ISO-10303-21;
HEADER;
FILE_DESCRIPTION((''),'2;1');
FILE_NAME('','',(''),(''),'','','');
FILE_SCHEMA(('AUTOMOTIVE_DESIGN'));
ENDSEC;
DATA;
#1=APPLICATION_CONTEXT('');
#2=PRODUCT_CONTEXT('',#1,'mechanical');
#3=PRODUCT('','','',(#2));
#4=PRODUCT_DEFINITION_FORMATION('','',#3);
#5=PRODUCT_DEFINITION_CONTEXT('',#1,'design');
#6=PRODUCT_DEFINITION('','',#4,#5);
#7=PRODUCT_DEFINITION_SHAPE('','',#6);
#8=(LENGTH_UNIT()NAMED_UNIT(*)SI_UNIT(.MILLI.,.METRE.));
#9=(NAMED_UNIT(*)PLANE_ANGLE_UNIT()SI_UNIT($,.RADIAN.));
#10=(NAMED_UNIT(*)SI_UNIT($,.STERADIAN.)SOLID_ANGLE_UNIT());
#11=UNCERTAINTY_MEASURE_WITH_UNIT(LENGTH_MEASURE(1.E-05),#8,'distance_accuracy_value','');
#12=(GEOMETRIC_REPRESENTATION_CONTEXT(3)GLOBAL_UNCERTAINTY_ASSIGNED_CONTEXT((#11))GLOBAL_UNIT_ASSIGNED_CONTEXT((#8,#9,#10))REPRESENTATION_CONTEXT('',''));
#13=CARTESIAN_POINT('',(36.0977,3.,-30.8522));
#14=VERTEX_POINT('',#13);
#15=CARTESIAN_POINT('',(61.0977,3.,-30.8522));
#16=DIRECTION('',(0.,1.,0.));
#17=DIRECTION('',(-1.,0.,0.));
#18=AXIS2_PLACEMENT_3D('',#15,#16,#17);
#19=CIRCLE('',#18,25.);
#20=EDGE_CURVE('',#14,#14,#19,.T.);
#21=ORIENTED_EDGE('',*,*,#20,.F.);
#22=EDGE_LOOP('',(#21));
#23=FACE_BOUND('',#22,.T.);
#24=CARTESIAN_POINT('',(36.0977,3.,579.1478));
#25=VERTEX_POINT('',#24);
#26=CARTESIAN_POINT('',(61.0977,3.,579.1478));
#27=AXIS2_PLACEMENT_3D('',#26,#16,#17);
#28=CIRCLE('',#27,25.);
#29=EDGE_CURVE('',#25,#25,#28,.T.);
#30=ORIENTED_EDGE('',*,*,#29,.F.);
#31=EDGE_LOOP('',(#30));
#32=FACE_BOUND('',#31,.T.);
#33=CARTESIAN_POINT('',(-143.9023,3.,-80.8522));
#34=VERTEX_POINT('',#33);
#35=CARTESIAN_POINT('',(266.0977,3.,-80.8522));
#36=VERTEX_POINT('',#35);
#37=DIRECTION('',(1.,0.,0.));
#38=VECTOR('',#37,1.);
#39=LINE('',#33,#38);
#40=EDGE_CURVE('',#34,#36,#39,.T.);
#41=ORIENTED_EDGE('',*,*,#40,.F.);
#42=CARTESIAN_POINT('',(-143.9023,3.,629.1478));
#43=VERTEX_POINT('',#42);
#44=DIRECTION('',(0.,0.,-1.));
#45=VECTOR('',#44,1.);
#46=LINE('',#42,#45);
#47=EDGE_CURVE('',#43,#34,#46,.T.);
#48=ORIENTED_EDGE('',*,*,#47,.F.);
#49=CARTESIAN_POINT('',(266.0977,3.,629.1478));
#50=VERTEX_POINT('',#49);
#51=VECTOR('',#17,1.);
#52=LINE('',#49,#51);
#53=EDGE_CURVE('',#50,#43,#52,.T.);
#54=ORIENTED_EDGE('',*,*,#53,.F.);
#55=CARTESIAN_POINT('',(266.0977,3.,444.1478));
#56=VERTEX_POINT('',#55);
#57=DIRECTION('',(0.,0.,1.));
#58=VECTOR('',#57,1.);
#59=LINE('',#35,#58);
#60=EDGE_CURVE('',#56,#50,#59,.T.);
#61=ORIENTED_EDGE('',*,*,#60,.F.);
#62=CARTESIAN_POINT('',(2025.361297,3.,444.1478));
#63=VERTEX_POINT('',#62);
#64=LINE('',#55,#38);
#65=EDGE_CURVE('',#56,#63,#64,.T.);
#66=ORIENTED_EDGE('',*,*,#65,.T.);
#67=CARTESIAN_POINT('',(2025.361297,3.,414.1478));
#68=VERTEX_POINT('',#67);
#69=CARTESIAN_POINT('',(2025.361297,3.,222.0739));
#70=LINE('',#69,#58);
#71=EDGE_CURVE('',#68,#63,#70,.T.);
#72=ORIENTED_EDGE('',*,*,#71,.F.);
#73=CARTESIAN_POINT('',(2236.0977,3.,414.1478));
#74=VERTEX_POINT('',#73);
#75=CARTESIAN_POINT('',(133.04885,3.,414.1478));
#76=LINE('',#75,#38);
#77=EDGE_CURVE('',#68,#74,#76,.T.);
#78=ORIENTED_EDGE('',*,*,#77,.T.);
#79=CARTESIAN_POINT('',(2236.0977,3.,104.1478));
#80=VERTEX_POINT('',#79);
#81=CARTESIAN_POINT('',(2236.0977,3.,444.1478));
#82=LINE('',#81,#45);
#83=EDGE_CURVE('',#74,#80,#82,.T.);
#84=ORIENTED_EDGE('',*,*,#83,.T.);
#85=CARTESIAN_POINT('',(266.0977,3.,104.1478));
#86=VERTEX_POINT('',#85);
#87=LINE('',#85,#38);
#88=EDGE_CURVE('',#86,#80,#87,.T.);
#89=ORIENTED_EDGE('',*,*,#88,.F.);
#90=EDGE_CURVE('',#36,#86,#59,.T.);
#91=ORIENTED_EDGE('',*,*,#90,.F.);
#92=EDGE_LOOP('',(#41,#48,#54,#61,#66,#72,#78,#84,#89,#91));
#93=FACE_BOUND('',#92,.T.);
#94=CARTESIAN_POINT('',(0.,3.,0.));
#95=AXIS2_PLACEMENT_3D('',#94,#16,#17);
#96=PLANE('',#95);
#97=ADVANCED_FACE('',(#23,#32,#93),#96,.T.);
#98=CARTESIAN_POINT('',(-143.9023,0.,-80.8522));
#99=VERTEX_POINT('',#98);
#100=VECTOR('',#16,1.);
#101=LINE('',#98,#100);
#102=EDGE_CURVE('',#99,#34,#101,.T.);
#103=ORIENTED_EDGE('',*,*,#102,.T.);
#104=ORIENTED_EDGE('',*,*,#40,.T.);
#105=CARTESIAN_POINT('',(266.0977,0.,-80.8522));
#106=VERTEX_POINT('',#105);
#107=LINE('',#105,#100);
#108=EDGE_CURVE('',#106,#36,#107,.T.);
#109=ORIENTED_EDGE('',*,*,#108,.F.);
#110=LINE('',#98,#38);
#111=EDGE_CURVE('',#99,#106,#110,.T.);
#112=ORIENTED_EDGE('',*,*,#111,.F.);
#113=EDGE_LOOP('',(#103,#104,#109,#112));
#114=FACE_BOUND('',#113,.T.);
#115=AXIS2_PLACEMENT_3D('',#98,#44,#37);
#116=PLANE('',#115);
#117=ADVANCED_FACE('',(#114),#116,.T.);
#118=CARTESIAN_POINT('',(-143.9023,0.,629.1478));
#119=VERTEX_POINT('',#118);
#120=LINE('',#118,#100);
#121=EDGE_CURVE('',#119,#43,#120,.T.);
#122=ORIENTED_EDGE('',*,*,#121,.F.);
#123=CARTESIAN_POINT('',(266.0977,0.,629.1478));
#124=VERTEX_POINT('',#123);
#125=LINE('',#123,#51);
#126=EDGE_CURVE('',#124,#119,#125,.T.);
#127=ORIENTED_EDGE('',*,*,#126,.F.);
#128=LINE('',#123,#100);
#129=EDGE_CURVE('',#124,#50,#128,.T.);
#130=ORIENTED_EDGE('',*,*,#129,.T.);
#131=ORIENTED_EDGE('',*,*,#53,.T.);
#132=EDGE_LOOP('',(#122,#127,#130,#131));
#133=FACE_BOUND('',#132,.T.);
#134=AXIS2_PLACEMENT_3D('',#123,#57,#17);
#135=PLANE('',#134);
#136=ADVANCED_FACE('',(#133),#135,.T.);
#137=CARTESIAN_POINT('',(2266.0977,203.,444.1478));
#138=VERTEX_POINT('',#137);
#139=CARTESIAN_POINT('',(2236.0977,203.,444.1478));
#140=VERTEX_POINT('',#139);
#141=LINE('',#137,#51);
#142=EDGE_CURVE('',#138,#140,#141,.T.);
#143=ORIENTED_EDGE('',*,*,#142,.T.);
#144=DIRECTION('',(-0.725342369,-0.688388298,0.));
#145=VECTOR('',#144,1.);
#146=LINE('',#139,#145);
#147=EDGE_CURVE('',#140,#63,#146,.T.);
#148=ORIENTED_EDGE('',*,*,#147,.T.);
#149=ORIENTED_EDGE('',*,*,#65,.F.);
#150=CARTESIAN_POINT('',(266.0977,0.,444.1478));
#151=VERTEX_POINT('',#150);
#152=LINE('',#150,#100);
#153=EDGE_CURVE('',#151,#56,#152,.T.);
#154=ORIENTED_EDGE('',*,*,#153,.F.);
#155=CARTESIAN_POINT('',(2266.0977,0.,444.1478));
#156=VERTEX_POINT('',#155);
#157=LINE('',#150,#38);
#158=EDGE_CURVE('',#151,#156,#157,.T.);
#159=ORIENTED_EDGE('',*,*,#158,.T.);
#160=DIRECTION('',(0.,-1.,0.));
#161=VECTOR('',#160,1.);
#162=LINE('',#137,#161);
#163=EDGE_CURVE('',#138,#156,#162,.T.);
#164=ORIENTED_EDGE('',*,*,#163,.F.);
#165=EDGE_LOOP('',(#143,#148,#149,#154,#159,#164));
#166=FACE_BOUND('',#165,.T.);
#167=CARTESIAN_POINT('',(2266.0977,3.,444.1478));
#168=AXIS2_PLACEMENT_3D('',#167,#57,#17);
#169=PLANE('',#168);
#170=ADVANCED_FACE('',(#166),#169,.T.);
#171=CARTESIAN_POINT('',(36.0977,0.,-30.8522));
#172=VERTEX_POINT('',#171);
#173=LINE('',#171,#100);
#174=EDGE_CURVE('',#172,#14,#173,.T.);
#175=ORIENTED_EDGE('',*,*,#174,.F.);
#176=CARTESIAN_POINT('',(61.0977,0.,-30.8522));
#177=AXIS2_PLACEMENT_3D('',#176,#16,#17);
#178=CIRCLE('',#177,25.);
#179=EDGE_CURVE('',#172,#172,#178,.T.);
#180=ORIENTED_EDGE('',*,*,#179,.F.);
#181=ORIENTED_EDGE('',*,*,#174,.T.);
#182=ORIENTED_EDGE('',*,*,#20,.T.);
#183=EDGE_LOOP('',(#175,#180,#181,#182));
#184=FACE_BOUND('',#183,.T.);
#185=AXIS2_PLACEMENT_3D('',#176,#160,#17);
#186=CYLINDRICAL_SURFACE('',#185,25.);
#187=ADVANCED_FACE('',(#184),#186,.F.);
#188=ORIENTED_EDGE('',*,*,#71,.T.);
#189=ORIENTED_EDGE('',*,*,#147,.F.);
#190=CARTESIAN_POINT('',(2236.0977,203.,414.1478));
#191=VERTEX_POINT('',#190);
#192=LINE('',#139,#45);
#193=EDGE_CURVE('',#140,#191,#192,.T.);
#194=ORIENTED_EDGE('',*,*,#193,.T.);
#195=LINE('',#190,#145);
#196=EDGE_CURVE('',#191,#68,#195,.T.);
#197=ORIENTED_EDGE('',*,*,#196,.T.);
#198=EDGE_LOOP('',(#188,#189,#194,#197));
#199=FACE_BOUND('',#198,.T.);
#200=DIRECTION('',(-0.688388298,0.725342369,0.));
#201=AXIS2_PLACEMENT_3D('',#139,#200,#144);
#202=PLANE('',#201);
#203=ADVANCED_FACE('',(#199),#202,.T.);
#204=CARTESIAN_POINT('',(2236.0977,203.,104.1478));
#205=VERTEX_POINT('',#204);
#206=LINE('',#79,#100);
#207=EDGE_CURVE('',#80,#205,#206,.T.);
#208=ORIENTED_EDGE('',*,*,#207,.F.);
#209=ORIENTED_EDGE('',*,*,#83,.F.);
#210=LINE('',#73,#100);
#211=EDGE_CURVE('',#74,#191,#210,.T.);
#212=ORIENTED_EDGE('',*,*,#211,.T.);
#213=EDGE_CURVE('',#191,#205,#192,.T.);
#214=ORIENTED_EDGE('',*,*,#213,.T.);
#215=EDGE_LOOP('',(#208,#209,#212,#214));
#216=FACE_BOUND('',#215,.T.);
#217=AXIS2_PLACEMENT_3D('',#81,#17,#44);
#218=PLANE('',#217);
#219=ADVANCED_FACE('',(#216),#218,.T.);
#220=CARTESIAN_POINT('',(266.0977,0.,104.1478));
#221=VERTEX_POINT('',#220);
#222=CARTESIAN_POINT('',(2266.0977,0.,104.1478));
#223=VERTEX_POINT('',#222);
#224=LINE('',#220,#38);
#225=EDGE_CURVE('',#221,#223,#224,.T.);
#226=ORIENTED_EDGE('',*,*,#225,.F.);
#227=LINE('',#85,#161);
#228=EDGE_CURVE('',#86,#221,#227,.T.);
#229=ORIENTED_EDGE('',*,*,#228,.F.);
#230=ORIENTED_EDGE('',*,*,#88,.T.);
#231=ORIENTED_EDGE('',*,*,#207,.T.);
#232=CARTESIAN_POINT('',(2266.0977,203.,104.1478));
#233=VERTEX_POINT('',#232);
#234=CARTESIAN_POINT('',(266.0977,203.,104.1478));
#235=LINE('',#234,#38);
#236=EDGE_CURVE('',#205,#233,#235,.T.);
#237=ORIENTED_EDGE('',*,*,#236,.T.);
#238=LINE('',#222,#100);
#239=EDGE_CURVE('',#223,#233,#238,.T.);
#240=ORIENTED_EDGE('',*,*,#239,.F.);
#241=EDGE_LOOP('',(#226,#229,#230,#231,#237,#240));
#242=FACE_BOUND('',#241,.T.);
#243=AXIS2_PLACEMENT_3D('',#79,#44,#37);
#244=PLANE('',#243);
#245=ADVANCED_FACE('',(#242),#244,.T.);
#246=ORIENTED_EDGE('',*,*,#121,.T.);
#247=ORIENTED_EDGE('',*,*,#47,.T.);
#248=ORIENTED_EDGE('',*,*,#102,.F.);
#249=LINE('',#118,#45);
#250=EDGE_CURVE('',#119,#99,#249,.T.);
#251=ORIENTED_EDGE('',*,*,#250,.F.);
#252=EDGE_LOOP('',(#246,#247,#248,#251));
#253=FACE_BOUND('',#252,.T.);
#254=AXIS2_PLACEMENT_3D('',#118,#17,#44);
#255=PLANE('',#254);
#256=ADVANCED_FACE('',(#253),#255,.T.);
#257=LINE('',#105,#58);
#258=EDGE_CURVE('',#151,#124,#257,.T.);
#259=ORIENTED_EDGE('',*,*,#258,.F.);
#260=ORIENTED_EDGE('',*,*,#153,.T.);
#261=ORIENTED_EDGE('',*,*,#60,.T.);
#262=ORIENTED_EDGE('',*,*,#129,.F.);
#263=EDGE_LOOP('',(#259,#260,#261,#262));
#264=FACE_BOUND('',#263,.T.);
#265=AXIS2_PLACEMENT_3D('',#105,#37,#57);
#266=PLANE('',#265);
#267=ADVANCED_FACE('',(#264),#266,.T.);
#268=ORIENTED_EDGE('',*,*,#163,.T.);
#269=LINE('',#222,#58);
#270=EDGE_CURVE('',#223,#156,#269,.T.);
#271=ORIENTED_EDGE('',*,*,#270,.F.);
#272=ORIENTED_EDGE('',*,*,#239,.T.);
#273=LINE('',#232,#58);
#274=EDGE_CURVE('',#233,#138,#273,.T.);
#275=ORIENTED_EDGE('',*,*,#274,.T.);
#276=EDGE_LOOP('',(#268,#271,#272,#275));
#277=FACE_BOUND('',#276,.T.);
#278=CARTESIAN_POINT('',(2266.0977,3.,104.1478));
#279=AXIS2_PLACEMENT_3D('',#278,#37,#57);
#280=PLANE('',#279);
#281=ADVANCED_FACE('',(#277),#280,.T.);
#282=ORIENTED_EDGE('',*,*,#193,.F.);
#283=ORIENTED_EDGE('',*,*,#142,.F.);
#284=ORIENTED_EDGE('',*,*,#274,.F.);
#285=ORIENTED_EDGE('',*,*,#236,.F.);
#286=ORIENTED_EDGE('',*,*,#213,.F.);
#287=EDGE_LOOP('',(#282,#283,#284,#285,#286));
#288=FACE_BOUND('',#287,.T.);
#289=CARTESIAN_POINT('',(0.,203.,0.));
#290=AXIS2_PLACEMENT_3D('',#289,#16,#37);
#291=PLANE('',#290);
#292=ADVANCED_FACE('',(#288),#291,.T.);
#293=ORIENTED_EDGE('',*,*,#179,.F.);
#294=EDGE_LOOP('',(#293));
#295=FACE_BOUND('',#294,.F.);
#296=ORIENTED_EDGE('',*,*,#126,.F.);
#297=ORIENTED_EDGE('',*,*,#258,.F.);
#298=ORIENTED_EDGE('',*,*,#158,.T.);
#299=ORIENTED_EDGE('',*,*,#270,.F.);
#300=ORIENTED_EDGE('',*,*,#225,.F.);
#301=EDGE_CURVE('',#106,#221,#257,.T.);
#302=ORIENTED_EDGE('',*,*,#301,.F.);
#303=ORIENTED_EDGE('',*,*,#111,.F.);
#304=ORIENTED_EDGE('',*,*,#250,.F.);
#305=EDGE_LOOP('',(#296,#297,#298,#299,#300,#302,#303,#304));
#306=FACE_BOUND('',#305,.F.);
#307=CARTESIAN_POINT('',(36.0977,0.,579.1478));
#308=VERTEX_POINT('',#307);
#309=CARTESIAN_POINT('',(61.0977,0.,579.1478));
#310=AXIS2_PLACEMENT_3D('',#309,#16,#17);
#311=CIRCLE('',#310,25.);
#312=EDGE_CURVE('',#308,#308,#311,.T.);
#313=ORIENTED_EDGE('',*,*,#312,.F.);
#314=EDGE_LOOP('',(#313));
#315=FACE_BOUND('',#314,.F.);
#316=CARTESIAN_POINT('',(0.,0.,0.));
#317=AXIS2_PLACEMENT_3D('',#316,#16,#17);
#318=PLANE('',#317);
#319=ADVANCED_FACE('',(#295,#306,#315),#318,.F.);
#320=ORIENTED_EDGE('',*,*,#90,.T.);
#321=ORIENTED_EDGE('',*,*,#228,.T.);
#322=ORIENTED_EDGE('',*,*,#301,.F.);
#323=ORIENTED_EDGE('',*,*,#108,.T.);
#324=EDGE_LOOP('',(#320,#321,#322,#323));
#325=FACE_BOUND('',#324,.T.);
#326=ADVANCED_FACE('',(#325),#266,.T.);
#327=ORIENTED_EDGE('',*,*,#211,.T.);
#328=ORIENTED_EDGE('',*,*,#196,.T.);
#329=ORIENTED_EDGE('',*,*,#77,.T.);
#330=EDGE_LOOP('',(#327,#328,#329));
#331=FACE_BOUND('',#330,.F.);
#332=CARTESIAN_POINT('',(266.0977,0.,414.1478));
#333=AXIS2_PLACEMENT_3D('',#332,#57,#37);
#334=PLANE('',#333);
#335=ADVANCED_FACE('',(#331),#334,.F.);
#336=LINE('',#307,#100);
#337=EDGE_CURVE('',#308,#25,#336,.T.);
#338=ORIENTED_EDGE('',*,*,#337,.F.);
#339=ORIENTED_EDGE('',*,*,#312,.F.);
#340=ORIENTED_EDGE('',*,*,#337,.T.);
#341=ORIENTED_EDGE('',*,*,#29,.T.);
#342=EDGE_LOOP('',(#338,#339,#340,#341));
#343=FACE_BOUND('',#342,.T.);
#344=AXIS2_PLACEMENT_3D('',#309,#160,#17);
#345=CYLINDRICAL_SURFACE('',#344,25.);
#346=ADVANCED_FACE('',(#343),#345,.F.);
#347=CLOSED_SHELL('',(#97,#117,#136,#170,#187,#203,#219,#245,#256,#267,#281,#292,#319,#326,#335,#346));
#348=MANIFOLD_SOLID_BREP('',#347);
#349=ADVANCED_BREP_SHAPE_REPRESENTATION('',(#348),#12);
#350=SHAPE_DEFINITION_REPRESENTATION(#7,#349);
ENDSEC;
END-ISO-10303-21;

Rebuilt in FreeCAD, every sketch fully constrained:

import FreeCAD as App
import Part
import Sketcher
from FreeCAD import Vector


def add_polygon(sketch, points):
    """Adds a closed chain of lines whose ends are joined by coincident constraints."""
    first, n = sketch.GeometryCount, len(points)
    for a, b in zip(points, points[1:] + points[:1]):
        sketch.addGeometry(Part.LineSegment(App.Vector(*a, 0), App.Vector(*b, 0)), False)
    for i in range(n):
        sketch.addConstraint(Sketcher.Constraint("Coincident", first + i, 2, first + (i + 1) % n, 1))

doc = App.newDocument("Part")
params = doc.addObject("Spreadsheet::Sheet", "Params")
for row, (alias, value) in enumerate([
    ("sketch1_diameter", "50 mm"),
    ("sketch1_width", "410 mm"),
    ("sketch1_height", "710 mm"),
    ("pad1_length", "3 mm"),
    ("sketch2_width", "3 mm"),
    ("sketch2_height", "340 mm"),
    ("pad2_length", "2000 mm"),
    ("sketch3_width", "30 mm"),
    ("sketch3_height", "340 mm"),
    ("pad3_length", "200 mm"),
    ("pad4_length", "30 mm"),
], start=1):
    params.set(f"A{row}", alias)
    params.set(f"B{row}", "=" + value)
    params.setAlias(f"B{row}", alias)

body = doc.addObject("PartDesign::Body", "Body")

# Sketch on XZ plane
sketch1 = body.newObject("Sketcher::SketchObject", "Sketch")
sketch1.AttachmentSupport = (doc.getObject("XZ_Plane"), [""])
sketch1.MapMode = "FlatFace"
add_polygon(sketch1, [(-144, 629), (266, 629), (266, -81), (-144, -81)])  # lines 0-3
sketch1.addGeometry(Part.Circle(Vector(61, -31, 0), Vector(0, 0, 1), 25), False)  # 4
sketch1.addGeometry(Part.Circle(Vector(61, 579, 0), Vector(0, 0, 1), 25), False)  # 5
sketch1.addConstraint([
    Sketcher.Constraint("Horizontal", 0),
    Sketcher.Constraint("Vertical", 1),
    Sketcher.Constraint("Horizontal", 2),
    Sketcher.Constraint("Vertical", 3),
    Sketcher.Constraint("Equal", 4, 5),
    Sketcher.Constraint("Vertical", 4, 3, 5, 3),
    Sketcher.Constraint("Diameter", 4, 50.0),
    Sketcher.Constraint("DistanceX", 0, 1, 0, 2, 410.0),
    Sketcher.Constraint("DistanceY", 1, 2, 1, 1, 710.0),
    Sketcher.Constraint("DistanceY", 5, 3, 0, 2, 50.0),
    Sketcher.Constraint("DistanceY", 1, 2, 4, 3, 50.0),
    Sketcher.Constraint("DistanceX", 5, 3, 0, 2, 205.0),
    Sketcher.Constraint("DistanceX", -1, 1, 4, 3, 61.0977),
    Sketcher.Constraint("DistanceY", 4, 3, -1, 1, 30.8522),
])
sketch1.setExpression("Constraints[10]", "Params.sketch1_diameter")
sketch1.setExpression("Constraints[11]", "Params.sketch1_width")
sketch1.setExpression("Constraints[12]", "Params.sketch1_height")
pad1 = body.newObject("PartDesign::Pad", "Pad")
pad1.Profile = sketch1
pad1.setExpression("Length", "Params.pad1_length")
pad1.Reversed = True

# Sketch on YZ plane
sketch2 = body.newObject("Sketcher::SketchObject", "Sketch001")
sketch2.AttachmentSupport = (doc.getObject("YZ_Plane"), [""])
sketch2.MapMode = "FlatFace"
sketch2.AttachmentOffset = App.Placement(Vector(0, 0, 266.0977), App.Rotation())
add_polygon(sketch2, [(0, 104.1), (3, 104.1), (3, 444.1), (0, 444.1)])  # lines 0-3
sketch2.addConstraint([
    Sketcher.Constraint("Horizontal", 0),
    Sketcher.Constraint("Vertical", 1),
    Sketcher.Constraint("Horizontal", 2),
    Sketcher.Constraint("Vertical", 3),
    Sketcher.Constraint("PointOnObject", 2, 2, -2),
    Sketcher.Constraint("DistanceX", 0, 1, 0, 2, 3.0),
    Sketcher.Constraint("DistanceY", 1, 1, 1, 2, 340.0),
    Sketcher.Constraint("DistanceY", -1, 1, 0, 2, 104.1478),
])
sketch2.setExpression("Constraints[9]", "Params.sketch2_width")
sketch2.setExpression("Constraints[10]", "Params.sketch2_height")
pad2 = body.newObject("PartDesign::Pad", "Pad001")
pad2.Profile = sketch2
pad2.setExpression("Length", "Params.pad2_length")

# Sketch on XZ plane
sketch3 = body.newObject("Sketcher::SketchObject", "Sketch002")
sketch3.AttachmentSupport = (doc.getObject("XZ_Plane"), [""])
sketch3.MapMode = "FlatFace"
sketch3.AttachmentOffset = App.Placement(Vector(0, 0, -3), App.Rotation())
add_polygon(sketch3, [(2266, 444), (2266, 104), (2236, 104), (2236, 444)])  # lines 0-3
sketch3.addConstraint([
    Sketcher.Constraint("Vertical", 0),
    Sketcher.Constraint("Horizontal", 1),
    Sketcher.Constraint("Vertical", 2),
    Sketcher.Constraint("Horizontal", 3),
    Sketcher.Constraint("DistanceX", 1, 2, 1, 1, 30.0),
    Sketcher.Constraint("DistanceY", 0, 2, 0, 1, 340.0),
    Sketcher.Constraint("DistanceX", -1, 1, 0, 2, 2266.0977),
    Sketcher.Constraint("DistanceY", -1, 1, 0, 2, 104.1478),
])
sketch3.setExpression("Constraints[8]", "Params.sketch3_width")
sketch3.setExpression("Constraints[9]", "Params.sketch3_height")
pad3 = body.newObject("PartDesign::Pad", "Pad002")
pad3.Profile = sketch3
pad3.setExpression("Length", "Params.pad3_length")
pad3.Reversed = True

# Sketch on XY plane
sketch4 = body.newObject("Sketcher::SketchObject", "Sketch003")
sketch4.AttachmentSupport = (doc.getObject("XY_Plane"), [""])
sketch4.MapMode = "FlatFace"
sketch4.AttachmentOffset = App.Placement(Vector(0, 0, 444.1478), App.Rotation())
add_polygon(sketch4, [(2236, 3), (2236, 203), (2025, 3)])  # lines 0-2
sketch4.addConstraint([
    Sketcher.Constraint("Vertical", 0),
    Sketcher.Constraint("Horizontal", 2),
    Sketcher.Constraint("DistanceY", -1, 1, 0, 2, 203.0),
    Sketcher.Constraint("DistanceY", 0, 1, 0, 2, 200.393),
    Sketcher.Constraint("DistanceX", 2, 1, 2, 2, 211.1505),
    Sketcher.Constraint("DistanceX", -1, 1, 0, 2, 2236.0977),
])
pad4 = body.newObject("PartDesign::Pad", "Pad003")
pad4.Profile = sketch4
pad4.setExpression("Length", "Params.pad4_length")
pad4.Reversed = True

doc.recompute()
